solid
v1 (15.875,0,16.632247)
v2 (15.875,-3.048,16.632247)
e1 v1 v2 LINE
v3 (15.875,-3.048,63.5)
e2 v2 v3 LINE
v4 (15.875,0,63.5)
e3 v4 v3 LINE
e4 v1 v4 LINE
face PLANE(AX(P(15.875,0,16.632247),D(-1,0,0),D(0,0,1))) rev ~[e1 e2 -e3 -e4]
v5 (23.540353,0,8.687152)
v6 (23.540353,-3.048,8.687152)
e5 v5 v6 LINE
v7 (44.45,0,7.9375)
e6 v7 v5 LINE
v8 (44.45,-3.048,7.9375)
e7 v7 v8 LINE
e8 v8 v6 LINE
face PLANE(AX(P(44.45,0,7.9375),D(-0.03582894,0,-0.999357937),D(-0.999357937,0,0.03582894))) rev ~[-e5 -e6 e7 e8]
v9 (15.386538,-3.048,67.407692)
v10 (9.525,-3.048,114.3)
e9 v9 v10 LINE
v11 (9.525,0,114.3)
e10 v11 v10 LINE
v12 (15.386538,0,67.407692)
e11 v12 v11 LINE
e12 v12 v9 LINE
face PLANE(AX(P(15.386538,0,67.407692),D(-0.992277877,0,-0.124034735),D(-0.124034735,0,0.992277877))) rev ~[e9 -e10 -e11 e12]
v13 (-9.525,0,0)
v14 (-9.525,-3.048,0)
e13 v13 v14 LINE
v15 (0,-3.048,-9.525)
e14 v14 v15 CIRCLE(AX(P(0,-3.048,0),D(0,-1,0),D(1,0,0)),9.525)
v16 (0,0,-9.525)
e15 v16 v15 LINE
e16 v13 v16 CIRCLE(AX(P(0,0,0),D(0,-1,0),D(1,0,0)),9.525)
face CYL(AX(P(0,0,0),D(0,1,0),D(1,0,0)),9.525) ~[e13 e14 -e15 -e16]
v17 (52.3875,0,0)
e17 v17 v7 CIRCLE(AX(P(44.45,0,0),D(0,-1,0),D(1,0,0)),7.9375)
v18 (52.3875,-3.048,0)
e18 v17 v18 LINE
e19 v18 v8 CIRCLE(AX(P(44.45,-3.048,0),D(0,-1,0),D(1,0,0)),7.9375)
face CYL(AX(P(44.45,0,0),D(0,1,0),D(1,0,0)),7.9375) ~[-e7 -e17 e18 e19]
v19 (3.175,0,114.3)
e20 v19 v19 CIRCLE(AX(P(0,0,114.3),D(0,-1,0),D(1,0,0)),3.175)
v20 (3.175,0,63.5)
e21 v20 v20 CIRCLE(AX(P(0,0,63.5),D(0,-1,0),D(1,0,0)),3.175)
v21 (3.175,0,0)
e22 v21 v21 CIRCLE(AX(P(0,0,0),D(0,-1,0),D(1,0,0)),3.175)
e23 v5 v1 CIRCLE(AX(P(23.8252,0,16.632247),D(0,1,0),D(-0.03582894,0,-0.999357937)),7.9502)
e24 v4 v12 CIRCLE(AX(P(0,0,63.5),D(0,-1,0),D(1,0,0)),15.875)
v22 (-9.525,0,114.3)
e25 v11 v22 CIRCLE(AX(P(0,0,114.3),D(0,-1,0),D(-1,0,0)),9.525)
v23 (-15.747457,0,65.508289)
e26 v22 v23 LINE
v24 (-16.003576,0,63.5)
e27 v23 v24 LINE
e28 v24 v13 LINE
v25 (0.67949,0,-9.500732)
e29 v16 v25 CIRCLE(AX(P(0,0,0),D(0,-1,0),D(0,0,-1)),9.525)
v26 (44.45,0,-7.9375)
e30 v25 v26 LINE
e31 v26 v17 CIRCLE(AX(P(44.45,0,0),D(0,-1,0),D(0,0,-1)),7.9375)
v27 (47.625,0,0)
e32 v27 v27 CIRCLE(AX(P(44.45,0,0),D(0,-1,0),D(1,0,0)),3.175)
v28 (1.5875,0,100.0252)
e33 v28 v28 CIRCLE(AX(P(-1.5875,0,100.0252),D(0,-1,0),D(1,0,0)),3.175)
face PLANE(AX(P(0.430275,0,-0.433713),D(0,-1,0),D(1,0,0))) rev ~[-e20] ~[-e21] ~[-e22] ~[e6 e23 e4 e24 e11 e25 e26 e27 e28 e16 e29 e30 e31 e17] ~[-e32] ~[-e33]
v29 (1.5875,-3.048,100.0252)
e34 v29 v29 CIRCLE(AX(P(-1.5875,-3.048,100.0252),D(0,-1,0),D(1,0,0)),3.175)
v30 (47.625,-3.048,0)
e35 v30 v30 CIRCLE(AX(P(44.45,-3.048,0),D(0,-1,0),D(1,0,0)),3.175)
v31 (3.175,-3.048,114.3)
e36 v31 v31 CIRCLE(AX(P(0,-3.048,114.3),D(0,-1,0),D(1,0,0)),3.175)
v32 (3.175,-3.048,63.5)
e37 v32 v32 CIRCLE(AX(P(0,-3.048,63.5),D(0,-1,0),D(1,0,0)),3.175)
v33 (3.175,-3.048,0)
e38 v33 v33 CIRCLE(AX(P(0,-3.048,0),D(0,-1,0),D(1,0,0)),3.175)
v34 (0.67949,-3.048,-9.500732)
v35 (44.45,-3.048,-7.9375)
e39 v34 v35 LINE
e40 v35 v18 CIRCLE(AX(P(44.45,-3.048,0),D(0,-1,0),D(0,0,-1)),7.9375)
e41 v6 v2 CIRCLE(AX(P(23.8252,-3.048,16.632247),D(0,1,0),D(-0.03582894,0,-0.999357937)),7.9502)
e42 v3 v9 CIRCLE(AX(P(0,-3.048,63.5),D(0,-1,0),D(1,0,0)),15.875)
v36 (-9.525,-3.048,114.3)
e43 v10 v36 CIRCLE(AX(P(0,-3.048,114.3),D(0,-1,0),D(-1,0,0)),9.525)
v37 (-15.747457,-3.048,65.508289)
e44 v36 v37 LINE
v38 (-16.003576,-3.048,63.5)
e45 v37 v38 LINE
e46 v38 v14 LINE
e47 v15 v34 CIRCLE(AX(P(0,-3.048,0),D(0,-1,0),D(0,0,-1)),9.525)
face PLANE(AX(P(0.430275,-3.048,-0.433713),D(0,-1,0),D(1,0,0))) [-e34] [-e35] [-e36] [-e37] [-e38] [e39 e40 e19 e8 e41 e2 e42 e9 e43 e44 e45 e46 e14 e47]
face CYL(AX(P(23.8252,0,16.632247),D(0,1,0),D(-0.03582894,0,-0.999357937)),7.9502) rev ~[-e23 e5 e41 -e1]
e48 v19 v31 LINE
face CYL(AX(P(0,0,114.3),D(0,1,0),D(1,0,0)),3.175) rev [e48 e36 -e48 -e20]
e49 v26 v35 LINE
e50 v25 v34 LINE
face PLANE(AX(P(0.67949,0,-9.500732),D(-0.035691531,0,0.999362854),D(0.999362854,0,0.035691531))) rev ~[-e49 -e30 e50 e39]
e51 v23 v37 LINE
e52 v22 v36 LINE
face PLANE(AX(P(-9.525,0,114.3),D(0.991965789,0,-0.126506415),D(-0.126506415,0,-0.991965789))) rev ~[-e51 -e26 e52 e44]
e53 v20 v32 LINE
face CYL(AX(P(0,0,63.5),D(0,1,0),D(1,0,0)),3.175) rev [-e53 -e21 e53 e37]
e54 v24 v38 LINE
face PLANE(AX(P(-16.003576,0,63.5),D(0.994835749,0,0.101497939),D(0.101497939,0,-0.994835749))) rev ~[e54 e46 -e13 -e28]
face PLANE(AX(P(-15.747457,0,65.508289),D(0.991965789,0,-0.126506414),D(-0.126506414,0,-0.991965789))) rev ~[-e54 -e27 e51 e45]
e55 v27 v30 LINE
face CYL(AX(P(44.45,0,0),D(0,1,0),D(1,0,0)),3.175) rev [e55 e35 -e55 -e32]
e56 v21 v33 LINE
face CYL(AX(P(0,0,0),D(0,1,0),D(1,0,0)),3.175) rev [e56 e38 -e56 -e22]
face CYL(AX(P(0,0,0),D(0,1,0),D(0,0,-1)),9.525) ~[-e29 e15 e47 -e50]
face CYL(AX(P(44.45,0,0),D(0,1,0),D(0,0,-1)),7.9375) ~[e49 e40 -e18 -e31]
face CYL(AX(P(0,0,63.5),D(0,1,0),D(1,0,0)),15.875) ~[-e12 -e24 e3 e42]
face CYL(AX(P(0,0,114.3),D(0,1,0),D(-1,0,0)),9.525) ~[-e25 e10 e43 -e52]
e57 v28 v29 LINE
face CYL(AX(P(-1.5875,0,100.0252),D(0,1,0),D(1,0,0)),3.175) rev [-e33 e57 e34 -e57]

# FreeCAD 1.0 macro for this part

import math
import FreeCAD as App
import Part
import Sketcher
Q = App.Units.Quantity

doc = App.newDocument("Part")
body = doc.addObject("PartDesign::Body", "Body")

sketch1 = body.newObject("Sketcher::SketchObject", "Sketch")
sketch1.AttachmentSupport = (doc.getObject("XZ_Plane"), [""])
sketch1.MapMode = "FlatFace"
sketch1.addGeometry([
    Part.LineSegment(App.Vector(0.7, -9.5, 0), App.Vector(44.5, -7.9, 0)),
    Part.ArcOfCircle(Part.Circle(App.Vector(44.5, 0, 0), App.Vector(0, 0, 1), 7.9), math.radians(-90), math.radians(0)),
    Part.ArcOfCircle(Part.Circle(App.Vector(44.5, 0, 0), App.Vector(0, 0, 1), 7.9), math.radians(0), math.radians(90)),
    Part.LineSegment(App.Vector(44.5, 7.9, 0), App.Vector(23.5, 8.7, 0)),
    Part.ArcOfCircle(Part.Circle(App.Vector(23.8, 16.6, 0), App.Vector(0, 0, 1), 8), math.radians(180), math.radians(268)),
    Part.LineSegment(App.Vector(15.9, 16.6, 0), App.Vector(15.9, 63.5, 0)),
    Part.ArcOfCircle(Part.Circle(App.Vector(0, 63.5, 0), App.Vector(0, 0, 1), 15.9), math.radians(0), math.radians(14.25)),
    Part.LineSegment(App.Vector(15.4, 67.4, 0), App.Vector(9.5, 114.3, 0)),
    Part.ArcOfCircle(Part.Circle(App.Vector(0, 114.3, 0), App.Vector(0, 0, 1), 9.5), math.radians(0), math.radians(180)),
    Part.LineSegment(App.Vector(-9.5, 114.3, 0), App.Vector(-15.7, 65.5, 0)),
    Part.LineSegment(App.Vector(-15.7, 65.5, 0), App.Vector(-16, 63.5, 0)),
    Part.LineSegment(App.Vector(-16, 63.5, 0), App.Vector(-9.5, 0, 0)),
    Part.ArcOfCircle(Part.Circle(App.Vector(0, 0, 0), App.Vector(0, 0, 1), 9.5), math.radians(180), math.radians(270)),
    Part.ArcOfCircle(Part.Circle(App.Vector(0, 0, 0), App.Vector(0, 0, 1), 9.5), math.radians(-90), math.radians(-85.91)),
    Part.Circle(App.Vector(0, 0, 0), App.Vector(0, 0, 1), 3.2),
    Part.Circle(App.Vector(44.5, 0, 0), App.Vector(0, 0, 1), 3.2),
    Part.Circle(App.Vector(0, 63.5, 0), App.Vector(0, 0, 1), 3.2),
    Part.Circle(App.Vector(-1.6, 100, 0), App.Vector(0, 0, 1), 3.2),
    Part.Circle(App.Vector(0, 114.3, 0), App.Vector(0, 0, 1), 3.2),
], False)
sketch1.addConstraint([
    Sketcher.Constraint("Coincident", 0, 2, 1, 1),
    Sketcher.Constraint("Tangent", 1, 2, 2, 1),
    Sketcher.Constraint("Coincident", 2, 2, 3, 1),
    Sketcher.Constraint("Tangent", 3, 2, 4, 2),
    Sketcher.Constraint("Tangent", 4, 1, 5, 1),
    Sketcher.Constraint("Tangent", 5, 2, 6, 1),
    Sketcher.Constraint("Coincident", 6, 2, 7, 1),
    Sketcher.Constraint("Coincident", 7, 2, 8, 1),
    Sketcher.Constraint("Coincident", 8, 2, 9, 1),
    Sketcher.Constraint("Coincident", 9, 2, 10, 1),
    Sketcher.Constraint("Coincident", 10, 2, 11, 1),
    Sketcher.Constraint("Coincident", 11, 2, 12, 1),
    Sketcher.Constraint("Tangent", 12, 2, 13, 1),
    Sketcher.Constraint("Coincident", 13, 2, 0, 1),
    Sketcher.Constraint("Vertical", 5),
    Sketcher.Constraint("Coincident", 12, 3, -1, 1),
    Sketcher.Constraint("Coincident", 14, 3, -1, 1),
    Sketcher.Constraint("Coincident", 15, 3, 1, 3),
    Sketcher.Constraint("Coincident", 16, 3, 6, 3),
    Sketcher.Constraint("Coincident", 18, 3, 8, 3),
    Sketcher.Constraint("Equal", 1, 2),
    Sketcher.Constraint("Equal", 8, 12),
    Sketcher.Constraint("Equal", 12, 13),
    Sketcher.Constraint("Equal", 14, 15),
    Sketcher.Constraint("Equal", 15, 16),
    Sketcher.Constraint("Equal", 16, 17),
    Sketcher.Constraint("Equal", 17, 18),
    Sketcher.Constraint("Symmetric", 7, 2, 8, 2, -2),
    Sketcher.Constraint("Symmetric", 0, 2, 2, 2, -1),
    Sketcher.Constraint("PointOnObject", 6, 3, -2),
    Sketcher.Constraint("PointOnObject", 1, 2, -1),
    Sketcher.Constraint("PointOnObject", 11, 2, -1),
    Sketcher.Constraint("PointOnObject", 12, 2, -2),
    Sketcher.Constraint("Parallel", 9, 10),
    Sketcher.Constraint("Horizontal", 18, 3, 7, 2),
    Sketcher.Constraint("Horizontal", 5, 2, 10, 2),
    Sketcher.Constraint("Vertical", 15, 3, 0, 2),
    Sketcher.Constraint("Diameter", 14, Q("0.25 in")),
    Sketcher.Constraint("Radius", 1, Q("0.3125 in")),
    Sketcher.Constraint("Radius", 4, Q("0.313 in")),
    Sketcher.Constraint("Radius", 6, Q("0.625 in")),
    Sketcher.Constraint("Radius", 8, Q("0.375 in")),
    Sketcher.Constraint("DistanceY", 6, 3, 8, 3, Q("2 in")),
    Sketcher.Constraint("DistanceY", -1, 1, 6, 3, Q("2.5 in")),
    Sketcher.Constraint("DistanceX", -1, 1, 1, 3, Q("1.75 in")),
    Sketcher.Constraint("DistanceX", 17, 3, -1, 1, Q("0.0625 in")),
    Sketcher.Constraint("DistanceY", -1, 1, 17, 3, Q("3.938 in")),
    Sketcher.Constraint("Distance", 3, Q("20.923081 mm")),
    Sketcher.Constraint("Distance", 9, Q("49.186888 mm")),
    Sketcher.Constraint("DistanceX", -1, 1, 6, 2, Q("15.386538 mm")),
    Sketcher.Constraint("DistanceY", -1, 1, 9, 2, Q("65.508289 mm")),
    Sketcher.Constraint("DistanceX", -1, 1, 13, 2, Q("0.67949 mm")),
])
pad1 = body.newObject("PartDesign::Pad", "Pad")
pad1.Profile = sketch1
pad1.Length = Q("0.12 in")

doc.recompute()
